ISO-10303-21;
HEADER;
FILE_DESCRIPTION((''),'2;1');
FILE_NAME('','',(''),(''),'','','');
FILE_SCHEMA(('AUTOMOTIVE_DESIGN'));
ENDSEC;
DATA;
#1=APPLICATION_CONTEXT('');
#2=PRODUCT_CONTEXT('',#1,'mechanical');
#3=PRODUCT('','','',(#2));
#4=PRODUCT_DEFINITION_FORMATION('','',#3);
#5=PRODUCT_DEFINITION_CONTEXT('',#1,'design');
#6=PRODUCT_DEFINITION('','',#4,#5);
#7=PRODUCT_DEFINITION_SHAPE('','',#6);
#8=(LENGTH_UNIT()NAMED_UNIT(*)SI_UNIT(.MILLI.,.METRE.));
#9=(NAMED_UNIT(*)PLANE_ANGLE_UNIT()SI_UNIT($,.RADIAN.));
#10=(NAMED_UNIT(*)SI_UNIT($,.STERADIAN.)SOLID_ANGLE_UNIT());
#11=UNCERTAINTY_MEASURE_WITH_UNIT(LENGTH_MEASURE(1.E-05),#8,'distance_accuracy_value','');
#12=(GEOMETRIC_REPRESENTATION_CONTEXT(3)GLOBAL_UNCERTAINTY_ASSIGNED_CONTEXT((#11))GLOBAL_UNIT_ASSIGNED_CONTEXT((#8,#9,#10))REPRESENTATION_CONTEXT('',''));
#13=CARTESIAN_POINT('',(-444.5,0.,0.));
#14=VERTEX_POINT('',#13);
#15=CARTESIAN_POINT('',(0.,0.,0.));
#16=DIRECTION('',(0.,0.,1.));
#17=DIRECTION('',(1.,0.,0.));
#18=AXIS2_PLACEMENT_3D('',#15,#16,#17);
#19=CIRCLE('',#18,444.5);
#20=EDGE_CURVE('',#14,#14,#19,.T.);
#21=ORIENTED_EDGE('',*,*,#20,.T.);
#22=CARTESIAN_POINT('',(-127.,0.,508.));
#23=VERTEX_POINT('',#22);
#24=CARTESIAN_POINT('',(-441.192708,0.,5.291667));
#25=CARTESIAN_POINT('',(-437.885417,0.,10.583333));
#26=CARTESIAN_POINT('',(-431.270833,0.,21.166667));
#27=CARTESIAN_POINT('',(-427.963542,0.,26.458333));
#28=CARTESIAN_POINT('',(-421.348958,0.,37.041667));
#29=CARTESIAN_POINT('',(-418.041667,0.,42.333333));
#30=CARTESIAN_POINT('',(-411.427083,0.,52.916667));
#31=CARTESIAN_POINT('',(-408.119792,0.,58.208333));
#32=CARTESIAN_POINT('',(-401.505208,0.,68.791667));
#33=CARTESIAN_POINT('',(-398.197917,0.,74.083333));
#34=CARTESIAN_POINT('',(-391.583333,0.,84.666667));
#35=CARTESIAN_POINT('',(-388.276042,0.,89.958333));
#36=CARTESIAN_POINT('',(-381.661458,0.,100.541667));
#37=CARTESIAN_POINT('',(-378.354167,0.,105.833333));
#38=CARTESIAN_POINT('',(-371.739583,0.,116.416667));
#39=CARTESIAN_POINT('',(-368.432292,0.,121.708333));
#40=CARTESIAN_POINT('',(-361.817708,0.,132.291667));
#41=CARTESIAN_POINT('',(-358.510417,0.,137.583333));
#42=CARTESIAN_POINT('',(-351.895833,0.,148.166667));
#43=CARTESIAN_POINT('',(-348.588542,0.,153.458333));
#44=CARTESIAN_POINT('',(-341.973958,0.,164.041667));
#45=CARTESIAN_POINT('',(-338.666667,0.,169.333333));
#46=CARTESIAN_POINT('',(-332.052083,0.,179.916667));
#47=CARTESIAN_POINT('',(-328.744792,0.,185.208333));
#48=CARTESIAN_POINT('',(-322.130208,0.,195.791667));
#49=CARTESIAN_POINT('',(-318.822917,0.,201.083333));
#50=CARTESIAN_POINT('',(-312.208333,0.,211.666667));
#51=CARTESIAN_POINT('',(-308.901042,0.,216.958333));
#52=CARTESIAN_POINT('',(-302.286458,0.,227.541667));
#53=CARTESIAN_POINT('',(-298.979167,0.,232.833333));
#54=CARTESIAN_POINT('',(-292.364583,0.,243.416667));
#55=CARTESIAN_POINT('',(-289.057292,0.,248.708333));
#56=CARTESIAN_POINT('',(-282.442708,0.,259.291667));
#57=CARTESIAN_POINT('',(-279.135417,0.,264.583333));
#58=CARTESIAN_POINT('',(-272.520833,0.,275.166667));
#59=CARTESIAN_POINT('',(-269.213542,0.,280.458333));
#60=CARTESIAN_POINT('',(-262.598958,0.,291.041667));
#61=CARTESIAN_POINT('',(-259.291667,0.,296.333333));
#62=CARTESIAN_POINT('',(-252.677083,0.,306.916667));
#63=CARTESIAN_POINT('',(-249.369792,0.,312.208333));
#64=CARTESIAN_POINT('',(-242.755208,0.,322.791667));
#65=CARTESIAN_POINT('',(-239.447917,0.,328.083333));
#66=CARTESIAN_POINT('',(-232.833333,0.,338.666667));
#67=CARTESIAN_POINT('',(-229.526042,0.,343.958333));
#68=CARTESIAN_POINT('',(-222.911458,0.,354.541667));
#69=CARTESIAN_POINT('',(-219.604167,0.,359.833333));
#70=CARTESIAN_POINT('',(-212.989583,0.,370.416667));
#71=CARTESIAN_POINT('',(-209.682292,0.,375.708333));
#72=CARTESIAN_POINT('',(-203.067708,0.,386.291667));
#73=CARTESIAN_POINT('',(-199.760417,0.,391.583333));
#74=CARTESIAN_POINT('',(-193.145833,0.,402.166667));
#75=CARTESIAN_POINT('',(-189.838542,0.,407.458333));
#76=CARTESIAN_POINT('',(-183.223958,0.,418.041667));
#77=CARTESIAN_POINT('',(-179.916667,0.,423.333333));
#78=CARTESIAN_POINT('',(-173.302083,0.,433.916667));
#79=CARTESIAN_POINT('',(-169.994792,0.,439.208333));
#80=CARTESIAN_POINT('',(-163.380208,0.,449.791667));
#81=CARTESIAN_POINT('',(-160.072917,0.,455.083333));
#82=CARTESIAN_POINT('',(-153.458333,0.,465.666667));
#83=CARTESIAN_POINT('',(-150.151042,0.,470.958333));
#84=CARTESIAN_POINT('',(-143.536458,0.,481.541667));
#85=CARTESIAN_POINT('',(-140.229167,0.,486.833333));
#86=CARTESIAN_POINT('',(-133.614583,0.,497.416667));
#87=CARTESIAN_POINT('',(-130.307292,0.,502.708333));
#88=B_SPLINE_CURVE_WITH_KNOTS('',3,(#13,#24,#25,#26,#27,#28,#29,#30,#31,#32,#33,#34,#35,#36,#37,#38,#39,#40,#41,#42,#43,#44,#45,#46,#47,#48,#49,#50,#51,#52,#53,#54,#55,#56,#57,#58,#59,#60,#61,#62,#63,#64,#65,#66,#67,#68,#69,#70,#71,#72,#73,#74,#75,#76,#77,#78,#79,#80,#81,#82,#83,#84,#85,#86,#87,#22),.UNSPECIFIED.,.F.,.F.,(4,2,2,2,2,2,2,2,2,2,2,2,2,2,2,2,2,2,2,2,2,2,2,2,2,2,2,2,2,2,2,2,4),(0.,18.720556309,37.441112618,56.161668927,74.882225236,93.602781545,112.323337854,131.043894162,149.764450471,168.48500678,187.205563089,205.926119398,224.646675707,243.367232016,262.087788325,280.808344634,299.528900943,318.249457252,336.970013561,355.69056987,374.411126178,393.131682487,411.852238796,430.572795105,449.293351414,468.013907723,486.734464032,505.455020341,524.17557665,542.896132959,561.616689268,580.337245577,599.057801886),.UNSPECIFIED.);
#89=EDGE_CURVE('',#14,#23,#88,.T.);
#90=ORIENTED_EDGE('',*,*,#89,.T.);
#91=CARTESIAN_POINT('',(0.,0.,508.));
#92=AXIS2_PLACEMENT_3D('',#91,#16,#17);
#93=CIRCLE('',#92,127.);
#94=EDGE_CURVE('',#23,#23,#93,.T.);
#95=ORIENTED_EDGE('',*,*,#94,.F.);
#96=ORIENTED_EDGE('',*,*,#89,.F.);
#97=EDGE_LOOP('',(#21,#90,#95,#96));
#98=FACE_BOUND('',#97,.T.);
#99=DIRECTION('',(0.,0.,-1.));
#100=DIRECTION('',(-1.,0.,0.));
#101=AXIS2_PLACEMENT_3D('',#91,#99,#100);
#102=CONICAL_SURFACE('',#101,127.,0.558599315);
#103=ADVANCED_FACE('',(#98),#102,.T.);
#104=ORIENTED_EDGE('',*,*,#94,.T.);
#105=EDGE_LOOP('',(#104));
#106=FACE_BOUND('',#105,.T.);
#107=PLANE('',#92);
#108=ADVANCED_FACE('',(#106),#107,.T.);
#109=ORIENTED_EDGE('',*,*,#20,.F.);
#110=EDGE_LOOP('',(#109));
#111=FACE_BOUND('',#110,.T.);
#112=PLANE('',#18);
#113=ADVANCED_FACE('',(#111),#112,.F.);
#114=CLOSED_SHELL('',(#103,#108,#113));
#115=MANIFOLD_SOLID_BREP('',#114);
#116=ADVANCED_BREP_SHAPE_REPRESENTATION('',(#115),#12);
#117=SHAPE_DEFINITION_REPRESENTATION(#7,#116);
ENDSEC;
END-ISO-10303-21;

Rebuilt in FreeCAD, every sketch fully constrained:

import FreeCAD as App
import Part
import Sketcher

V = App.Vector
Q = App.Units.Quantity

doc = App.newDocument("Part")
body = doc.addObject("PartDesign::Body", "Body")

# Sketch on XY plane
sketch1 = body.newObject("Sketcher::SketchObject", "Sketch")
sketch1.AttachmentSupport = (doc.getObject("XY_Plane"), [""])
sketch1.MapMode = "FlatFace"
sketch1.addGeometry(Part.Circle(V(0, 0, 0), V(0, 0, 1), 444.5), False)
sketch1.addConstraint([
    Sketcher.Constraint("Coincident", 0, 3, -1, 1),
    Sketcher.Constraint("Diameter", 0, Q("35 in")),
])

# Sketch on XY plane
sketch2 = body.newObject("Sketcher::SketchObject", "Sketch001")
sketch2.AttachmentSupport = (doc.getObject("XY_Plane"), [""])
sketch2.MapMode = "FlatFace"
sketch2.AttachmentOffset = App.Placement(V(0, 0, 20 * 25.4), App.Rotation())
sketch2.addGeometry(Part.Circle(V(0, 0, 0), V(0, 0, 1), 127), False)
sketch2.addConstraint([
    Sketcher.Constraint("Coincident", 0, 3, -1, 1),
    Sketcher.Constraint("Diameter", 0, Q("10 in")),
])

additiveloft = body.newObject("PartDesign::AdditiveLoft", "AdditiveLoft")
additiveloft.Profile = sketch1
additiveloft.Sections = [sketch2]

doc.recompute()
